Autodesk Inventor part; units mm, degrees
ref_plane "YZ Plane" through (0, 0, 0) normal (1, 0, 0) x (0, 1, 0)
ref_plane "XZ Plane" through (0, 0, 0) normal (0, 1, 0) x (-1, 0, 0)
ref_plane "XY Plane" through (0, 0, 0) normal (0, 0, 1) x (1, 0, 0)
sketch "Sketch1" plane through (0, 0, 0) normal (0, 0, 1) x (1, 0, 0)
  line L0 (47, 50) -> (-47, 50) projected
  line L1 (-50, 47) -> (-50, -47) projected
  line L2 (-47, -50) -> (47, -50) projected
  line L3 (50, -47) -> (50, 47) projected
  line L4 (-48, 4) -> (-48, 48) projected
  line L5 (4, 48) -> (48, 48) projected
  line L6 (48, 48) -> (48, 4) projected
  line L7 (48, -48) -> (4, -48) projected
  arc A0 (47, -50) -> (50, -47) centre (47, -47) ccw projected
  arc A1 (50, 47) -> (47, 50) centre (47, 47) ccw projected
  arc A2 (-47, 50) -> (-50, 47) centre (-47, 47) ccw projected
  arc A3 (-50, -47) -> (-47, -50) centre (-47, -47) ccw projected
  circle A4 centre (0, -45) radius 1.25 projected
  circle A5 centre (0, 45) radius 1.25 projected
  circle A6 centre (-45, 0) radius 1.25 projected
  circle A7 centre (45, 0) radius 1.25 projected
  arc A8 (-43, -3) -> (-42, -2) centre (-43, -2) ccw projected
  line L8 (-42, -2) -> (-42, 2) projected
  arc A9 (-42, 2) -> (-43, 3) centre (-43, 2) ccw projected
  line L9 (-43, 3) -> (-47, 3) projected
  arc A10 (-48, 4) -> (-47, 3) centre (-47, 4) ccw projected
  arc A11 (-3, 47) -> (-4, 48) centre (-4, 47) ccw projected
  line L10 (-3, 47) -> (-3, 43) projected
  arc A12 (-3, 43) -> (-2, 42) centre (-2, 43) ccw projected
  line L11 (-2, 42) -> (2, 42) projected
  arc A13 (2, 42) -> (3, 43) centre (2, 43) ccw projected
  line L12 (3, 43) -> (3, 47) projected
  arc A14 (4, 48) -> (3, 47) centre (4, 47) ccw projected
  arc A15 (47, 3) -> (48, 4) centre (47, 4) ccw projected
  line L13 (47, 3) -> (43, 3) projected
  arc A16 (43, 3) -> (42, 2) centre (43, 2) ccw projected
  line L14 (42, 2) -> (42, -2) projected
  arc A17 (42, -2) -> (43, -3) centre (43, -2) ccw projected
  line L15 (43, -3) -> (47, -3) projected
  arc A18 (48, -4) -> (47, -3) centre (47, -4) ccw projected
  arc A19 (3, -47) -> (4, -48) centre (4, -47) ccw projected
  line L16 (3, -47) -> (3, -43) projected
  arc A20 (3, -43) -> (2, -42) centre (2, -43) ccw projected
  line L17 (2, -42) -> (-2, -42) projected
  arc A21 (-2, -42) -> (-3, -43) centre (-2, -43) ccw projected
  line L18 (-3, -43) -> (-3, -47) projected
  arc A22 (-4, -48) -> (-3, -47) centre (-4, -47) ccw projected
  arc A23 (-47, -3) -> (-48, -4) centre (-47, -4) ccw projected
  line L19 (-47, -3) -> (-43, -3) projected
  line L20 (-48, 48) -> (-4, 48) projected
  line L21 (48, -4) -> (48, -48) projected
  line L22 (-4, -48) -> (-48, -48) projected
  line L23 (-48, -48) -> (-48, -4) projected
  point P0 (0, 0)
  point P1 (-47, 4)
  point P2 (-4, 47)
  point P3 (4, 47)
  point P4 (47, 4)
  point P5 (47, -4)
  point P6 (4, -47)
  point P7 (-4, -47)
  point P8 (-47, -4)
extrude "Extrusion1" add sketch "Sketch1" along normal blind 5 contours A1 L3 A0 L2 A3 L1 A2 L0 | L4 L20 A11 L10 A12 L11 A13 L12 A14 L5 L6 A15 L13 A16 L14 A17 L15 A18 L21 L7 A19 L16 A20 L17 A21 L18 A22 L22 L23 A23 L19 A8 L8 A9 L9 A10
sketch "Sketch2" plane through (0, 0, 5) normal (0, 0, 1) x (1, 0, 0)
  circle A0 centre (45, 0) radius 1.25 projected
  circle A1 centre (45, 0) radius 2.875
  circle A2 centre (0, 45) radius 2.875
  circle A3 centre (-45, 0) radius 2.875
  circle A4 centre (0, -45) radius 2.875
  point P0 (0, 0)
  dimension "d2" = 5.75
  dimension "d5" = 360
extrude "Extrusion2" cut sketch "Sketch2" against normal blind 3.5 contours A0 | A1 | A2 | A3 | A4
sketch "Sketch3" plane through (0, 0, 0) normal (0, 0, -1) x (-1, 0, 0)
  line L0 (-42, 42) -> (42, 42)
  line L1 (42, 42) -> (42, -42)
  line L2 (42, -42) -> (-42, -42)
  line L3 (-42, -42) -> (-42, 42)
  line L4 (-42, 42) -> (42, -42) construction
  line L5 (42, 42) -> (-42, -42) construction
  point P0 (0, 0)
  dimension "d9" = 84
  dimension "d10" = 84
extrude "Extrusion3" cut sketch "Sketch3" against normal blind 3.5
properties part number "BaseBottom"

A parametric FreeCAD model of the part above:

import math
import FreeCAD as App
import Part
import Sketcher
from FreeCAD import Vector

doc = App.newDocument("Part")
params = doc.addObject("Spreadsheet::Sheet", "Params")
for row, (alias, value) in enumerate([
    ("sketch1_radius", "3 mm"),
    ("sketch1_diameter", "2.5 mm"),
    ("sketch1_width", "94 mm"),
    ("pad1_length", "5 mm"),
    ("sketch2_diameter", "5.75 mm"),
    ("pocket1_length", "3.5 mm"),
    ("sketch3_width", "84 mm"),
    ("pocket2_length", "3.5 mm"),
], start=1):
    params.set(f"A{row}", alias)
    params.set(f"B{row}", "=" + value)
    params.setAlias(f"B{row}", alias)

body = doc.addObject("PartDesign::Body", "Body")

# Sketch on XY plane
sketch1 = doc.addObject("Sketcher::SketchObject", "Sketch")
body.addObject(sketch1)
sketch1.AttachmentSupport = (doc.XY_Plane, [""])
sketch1.MapMode = "FlatFace"
sketch1.addGeometry([
    Part.ArcOfCircle(Part.Circle(Vector(47, 47, 0), Vector(0, 0, 1), 3), math.radians(0), math.radians(90)),  # 0
    Part.LineSegment(Vector(47, 50, 0), Vector(-47, 50, 0)),  # 1
    Part.ArcOfCircle(Part.Circle(Vector(-47, 47, 0), Vector(0, 0, 1), 3), math.radians(90), math.radians(180)),  # 2
    Part.LineSegment(Vector(-50, 47, 0), Vector(-50, -47, 0)),  # 3
    Part.ArcOfCircle(Part.Circle(Vector(-47, -47, 0), Vector(0, 0, 1), 3), math.radians(180), math.radians(270)),  # 4
    Part.LineSegment(Vector(-47, -50, 0), Vector(47, -50, 0)),  # 5
    Part.ArcOfCircle(Part.Circle(Vector(47, -47, 0), Vector(0, 0, 1), 3), math.radians(-90), math.radians(0)),  # 6
    Part.LineSegment(Vector(50, -47, 0), Vector(50, 47, 0)),  # 7
    Part.Circle(Vector(0, -45, 0), Vector(0, 0, 1), 1.25),  # 8
    Part.Circle(Vector(-45, 0, 0), Vector(0, 0, 1), 1.25),  # 9
    Part.Circle(Vector(45, 0, 0), Vector(0, 0, 1), 1.25),  # 10
    Part.Circle(Vector(0, 45, 0), Vector(0, 0, 1), 1.25),  # 11
], False)
sketch1.addConstraint([
    Sketcher.Constraint("Tangent", 0, 2, 1, 1),
    Sketcher.Constraint("Tangent", 1, 2, 2, 1),
    Sketcher.Constraint("Tangent", 2, 2, 3, 1),
    Sketcher.Constraint("Tangent", 3, 2, 4, 1),
    Sketcher.Constraint("Tangent", 4, 2, 5, 1),
    Sketcher.Constraint("Tangent", 5, 2, 6, 1),
    Sketcher.Constraint("Tangent", 6, 2, 7, 1),
    Sketcher.Constraint("Tangent", 7, 2, 0, 1),
    Sketcher.Constraint("Horizontal", 1),
    Sketcher.Constraint("Vertical", 3),
    Sketcher.Constraint("Horizontal", 5),
    Sketcher.Constraint("Vertical", 7),
    Sketcher.Constraint("Equal", 0, 2),
    Sketcher.Constraint("Equal", 2, 4),
    Sketcher.Constraint("Equal", 4, 6),
    Sketcher.Constraint("Equal", 8, 9),
    Sketcher.Constraint("Equal", 9, 10),
    Sketcher.Constraint("Equal", 10, 11),
    Sketcher.Constraint("Symmetric", 0, 3, 4, 3, -1, 1),
    Sketcher.Constraint("Symmetric", 9, 3, 10, 3, -1, 1),
    Sketcher.Constraint("Symmetric", 8, 3, 11, 3, -1, 1),
    Sketcher.Constraint("PointOnObject", 8, 3, -2),
    Sketcher.Constraint("PointOnObject", 9, 3, -1),
    Sketcher.Constraint("Equal", 5, 3),
    Sketcher.Constraint("Radius", 0, 3.0),
    Sketcher.Constraint("Diameter", 8, 2.5),
    Sketcher.Constraint("DistanceX", 1, 2, 1, 1, 94.0),
    Sketcher.Constraint("DistanceY", 8, 3, -1, 1, 45.0),
    Sketcher.Constraint("DistanceX", 9, 3, -1, 1, 45.0),
])
sketch1.setExpression("Constraints[24]", "Params.sketch1_radius")
sketch1.setExpression("Constraints[25]", "Params.sketch1_diameter")
sketch1.setExpression("Constraints[26]", "Params.sketch1_width")
pad1 = doc.addObject("PartDesign::Pad", "Pad")
body.addObject(pad1)
pad1.Profile = sketch1
pad1.setExpression("Length", "Params.pad1_length")

# Sketch on XY plane
sketch2 = doc.addObject("Sketcher::SketchObject", "Sketch001")
body.addObject(sketch2)
sketch2.AttachmentSupport = (doc.XY_Plane, [""])
sketch2.MapMode = "FlatFace"
sketch2.AttachmentOffset = App.Placement(Vector(0, 0, 5), App.Rotation())
sketch2.addGeometry([
    Part.Circle(Vector(45, 0, 0), Vector(0, 0, 1), 2.875),
    Part.Circle(Vector(0, 45, 0), Vector(0, 0, 1), 2.875),
    Part.Circle(Vector(-45, 0, 0), Vector(0, 0, 1), 2.875),
    Part.Circle(Vector(0, -45, 0), Vector(0, 0, 1), 2.875),
], False)
sketch2.addConstraint([
    Sketcher.Constraint("Equal", 0, 1),
    Sketcher.Constraint("Equal", 1, 2),
    Sketcher.Constraint("Equal", 2, 3),
    Sketcher.Constraint("Symmetric", 0, 3, 2, 3, -1, 1),
    Sketcher.Constraint("Symmetric", 1, 3, 3, 3, -1, 1),
    Sketcher.Constraint("PointOnObject", 0, 3, -1),
    Sketcher.Constraint("PointOnObject", 1, 3, -2),
    Sketcher.Constraint("Diameter", 0, 5.75),
    Sketcher.Constraint("DistanceX", -1, 1, 0, 3, 45.0),
    Sketcher.Constraint("DistanceY", -1, 1, 1, 3, 45.0),
])
sketch2.setExpression("Constraints[7]", "Params.sketch2_diameter")
pocket1 = doc.addObject("PartDesign::Pocket", "Pocket")
body.addObject(pocket1)
pocket1.Profile = sketch2
pocket1.setExpression("Length", "Params.pocket1_length")

# Sketch on XY plane
sketch3 = doc.addObject("Sketcher::SketchObject", "Sketch002")
body.addObject(sketch3)
sketch3.AttachmentSupport = (doc.XY_Plane, [""])
sketch3.MapMode = "FlatFace"
sketch3.addGeometry([
    Part.LineSegment(Vector(-42, 42, 0), Vector(42, 42, 0)),
    Part.LineSegment(Vector(42, 42, 0), Vector(42, -42, 0)),
    Part.LineSegment(Vector(42, -42, 0), Vector(-42, -42, 0)),
    Part.LineSegment(Vector(-42, -42, 0), Vector(-42, 42, 0)),
], False)
sketch3.addConstraint([
    Sketcher.Constraint("Coincident", 0, 2, 1, 1),
    Sketcher.Constraint("Coincident", 1, 2, 2, 1),
    Sketcher.Constraint("Coincident", 2, 2, 3, 1),
    Sketcher.Constraint("Coincident", 3, 2, 0, 1),
    Sketcher.Constraint("Horizontal", 0),
    Sketcher.Constraint("Vertical", 1),
    Sketcher.Constraint("Horizontal", 2),
    Sketcher.Constraint("Vertical", 3),
    Sketcher.Constraint("Symmetric", 0, 2, 2, 2, -1, 1),
    Sketcher.Constraint("Equal", 2, 1),
    Sketcher.Constraint("DistanceX", 0, 1, 0, 2, 84.0),
])
sketch3.setExpression("Constraints[10]", "Params.sketch3_width")
pocket2 = doc.addObject("PartDesign::Pocket", "Pocket001")
body.addObject(pocket2)
pocket2.Profile = sketch3
pocket2.setExpression("Length", "Params.pocket2_length")
pocket2.Reversed = True

doc.recompute()
